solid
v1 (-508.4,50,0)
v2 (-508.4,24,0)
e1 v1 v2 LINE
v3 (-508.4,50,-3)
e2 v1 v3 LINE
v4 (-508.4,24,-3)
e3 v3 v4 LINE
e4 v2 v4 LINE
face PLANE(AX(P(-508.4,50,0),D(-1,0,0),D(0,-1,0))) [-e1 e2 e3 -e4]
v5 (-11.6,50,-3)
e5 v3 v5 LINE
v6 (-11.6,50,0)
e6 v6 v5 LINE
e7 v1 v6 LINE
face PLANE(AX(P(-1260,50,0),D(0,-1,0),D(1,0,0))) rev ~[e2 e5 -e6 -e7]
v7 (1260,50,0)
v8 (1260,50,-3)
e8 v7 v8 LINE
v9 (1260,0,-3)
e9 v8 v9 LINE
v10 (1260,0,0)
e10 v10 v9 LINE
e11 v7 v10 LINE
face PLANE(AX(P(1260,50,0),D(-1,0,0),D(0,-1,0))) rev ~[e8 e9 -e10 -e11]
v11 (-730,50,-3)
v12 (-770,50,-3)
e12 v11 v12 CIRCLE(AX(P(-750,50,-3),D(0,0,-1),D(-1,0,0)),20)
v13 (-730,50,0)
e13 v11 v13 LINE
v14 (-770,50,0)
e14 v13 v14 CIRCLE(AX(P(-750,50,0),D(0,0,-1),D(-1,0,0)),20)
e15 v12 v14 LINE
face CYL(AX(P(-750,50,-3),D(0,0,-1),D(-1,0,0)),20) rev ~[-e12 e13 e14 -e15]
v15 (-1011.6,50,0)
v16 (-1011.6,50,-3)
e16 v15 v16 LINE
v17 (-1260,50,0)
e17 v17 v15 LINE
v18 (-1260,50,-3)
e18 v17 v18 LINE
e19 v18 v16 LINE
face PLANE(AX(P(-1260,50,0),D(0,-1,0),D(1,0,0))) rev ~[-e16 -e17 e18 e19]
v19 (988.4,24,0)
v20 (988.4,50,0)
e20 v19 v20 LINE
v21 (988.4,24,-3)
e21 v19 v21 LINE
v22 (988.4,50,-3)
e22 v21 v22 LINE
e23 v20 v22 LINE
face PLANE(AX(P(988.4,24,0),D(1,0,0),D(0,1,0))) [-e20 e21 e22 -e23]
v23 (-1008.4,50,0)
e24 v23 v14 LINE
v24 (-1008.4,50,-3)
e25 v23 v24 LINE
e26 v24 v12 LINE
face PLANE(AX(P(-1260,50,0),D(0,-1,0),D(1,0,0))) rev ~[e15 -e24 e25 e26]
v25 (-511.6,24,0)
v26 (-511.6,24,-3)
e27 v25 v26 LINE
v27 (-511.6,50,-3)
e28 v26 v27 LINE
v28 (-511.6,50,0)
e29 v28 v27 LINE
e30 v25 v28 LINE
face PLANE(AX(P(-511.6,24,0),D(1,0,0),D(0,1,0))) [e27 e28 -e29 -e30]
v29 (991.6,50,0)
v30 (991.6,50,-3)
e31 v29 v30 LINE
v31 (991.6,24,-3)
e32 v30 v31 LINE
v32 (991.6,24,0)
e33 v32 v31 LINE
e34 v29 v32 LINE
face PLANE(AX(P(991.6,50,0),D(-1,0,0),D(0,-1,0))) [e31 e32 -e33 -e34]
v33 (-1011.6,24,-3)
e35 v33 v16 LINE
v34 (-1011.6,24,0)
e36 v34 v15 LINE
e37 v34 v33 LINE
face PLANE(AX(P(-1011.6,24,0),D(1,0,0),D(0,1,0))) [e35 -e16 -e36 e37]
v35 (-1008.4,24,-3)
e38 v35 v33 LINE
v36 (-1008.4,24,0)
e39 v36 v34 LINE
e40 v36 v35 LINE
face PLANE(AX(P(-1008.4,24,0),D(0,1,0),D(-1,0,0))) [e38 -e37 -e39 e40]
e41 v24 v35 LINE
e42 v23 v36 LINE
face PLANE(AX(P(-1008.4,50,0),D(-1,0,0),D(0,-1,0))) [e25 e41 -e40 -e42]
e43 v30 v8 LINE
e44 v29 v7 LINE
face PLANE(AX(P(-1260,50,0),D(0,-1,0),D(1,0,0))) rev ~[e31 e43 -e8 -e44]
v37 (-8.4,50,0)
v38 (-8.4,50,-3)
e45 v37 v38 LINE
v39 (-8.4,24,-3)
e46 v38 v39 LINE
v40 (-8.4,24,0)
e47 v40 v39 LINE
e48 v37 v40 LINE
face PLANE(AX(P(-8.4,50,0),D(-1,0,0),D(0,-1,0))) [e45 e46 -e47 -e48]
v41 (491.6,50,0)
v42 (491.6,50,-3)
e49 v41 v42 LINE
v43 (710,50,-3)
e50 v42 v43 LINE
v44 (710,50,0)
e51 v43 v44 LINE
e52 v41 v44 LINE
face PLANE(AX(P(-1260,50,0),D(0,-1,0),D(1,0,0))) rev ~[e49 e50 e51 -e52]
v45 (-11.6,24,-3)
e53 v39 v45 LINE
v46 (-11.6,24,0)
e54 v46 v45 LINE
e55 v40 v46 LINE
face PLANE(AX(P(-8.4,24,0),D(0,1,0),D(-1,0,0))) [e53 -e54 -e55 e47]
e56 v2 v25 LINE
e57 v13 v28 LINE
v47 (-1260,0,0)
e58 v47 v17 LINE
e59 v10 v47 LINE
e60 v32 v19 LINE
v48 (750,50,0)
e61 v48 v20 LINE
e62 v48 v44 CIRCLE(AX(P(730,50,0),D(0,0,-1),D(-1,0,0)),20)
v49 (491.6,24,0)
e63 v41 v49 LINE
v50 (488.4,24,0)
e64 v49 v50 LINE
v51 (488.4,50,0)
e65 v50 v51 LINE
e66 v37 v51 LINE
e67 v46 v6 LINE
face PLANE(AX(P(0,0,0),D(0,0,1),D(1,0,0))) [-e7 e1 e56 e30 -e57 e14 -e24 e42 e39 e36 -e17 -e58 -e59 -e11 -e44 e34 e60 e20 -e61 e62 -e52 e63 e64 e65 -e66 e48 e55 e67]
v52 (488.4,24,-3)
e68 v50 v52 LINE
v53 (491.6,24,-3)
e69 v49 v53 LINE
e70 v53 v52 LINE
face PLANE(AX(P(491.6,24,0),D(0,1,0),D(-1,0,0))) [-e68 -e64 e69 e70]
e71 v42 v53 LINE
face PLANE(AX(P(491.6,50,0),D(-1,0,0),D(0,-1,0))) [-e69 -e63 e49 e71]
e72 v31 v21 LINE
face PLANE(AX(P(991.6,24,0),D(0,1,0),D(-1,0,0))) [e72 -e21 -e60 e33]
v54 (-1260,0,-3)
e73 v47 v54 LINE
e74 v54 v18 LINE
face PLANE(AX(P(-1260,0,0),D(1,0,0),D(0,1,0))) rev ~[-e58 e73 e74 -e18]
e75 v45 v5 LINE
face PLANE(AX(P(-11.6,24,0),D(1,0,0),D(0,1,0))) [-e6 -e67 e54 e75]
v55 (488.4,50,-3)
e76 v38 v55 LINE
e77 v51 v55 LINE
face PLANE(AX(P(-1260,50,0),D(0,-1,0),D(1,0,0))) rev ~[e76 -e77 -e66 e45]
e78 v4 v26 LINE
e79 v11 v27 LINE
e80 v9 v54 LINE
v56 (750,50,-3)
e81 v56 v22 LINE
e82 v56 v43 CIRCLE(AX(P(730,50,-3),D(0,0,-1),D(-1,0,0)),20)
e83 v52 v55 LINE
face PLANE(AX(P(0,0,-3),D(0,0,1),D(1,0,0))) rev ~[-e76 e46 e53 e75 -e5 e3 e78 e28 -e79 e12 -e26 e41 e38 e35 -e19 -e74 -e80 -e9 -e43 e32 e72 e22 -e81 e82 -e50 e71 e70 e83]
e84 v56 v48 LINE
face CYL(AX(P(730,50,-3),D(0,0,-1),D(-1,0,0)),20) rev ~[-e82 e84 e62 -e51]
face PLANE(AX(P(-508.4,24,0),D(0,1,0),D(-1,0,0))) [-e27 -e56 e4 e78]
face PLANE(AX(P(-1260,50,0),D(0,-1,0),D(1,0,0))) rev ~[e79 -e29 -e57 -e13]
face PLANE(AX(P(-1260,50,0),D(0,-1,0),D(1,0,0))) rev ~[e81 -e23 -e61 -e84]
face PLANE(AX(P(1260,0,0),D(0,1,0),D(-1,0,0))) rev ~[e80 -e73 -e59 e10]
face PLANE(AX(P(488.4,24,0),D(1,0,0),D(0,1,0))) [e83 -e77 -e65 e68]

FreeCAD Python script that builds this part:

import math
import FreeCAD as App
import Part
import Sketcher
from FreeCAD import Vector
Q = App.Units.Quantity

doc = App.newDocument("Part")
body = doc.addObject("PartDesign::Body", "Body")

# Sketch on XY plane
sketch1 = body.newObject("Sketcher::SketchObject", "Sketch")
sketch1.AttachmentSupport = (doc.getObject("XY_Plane"), [""])
sketch1.MapMode = "FlatFace"
sketch1.addGeometry(Part.LineSegment(Vector(1260, 50, 0), Vector(-1260, 50, 0)), False)
sketch1.addGeometry(Part.LineSegment(Vector(-1260, 50, 0), Vector(-1260, 0, 0)), False)
sketch1.addGeometry(Part.LineSegment(Vector(-1260, 0, 0), Vector(1260, 0, 0)), False)
sketch1.addGeometry(Part.LineSegment(Vector(1260, 0, 0), Vector(1260, 50, 0)), False)
sketch1.addConstraint(Sketcher.Constraint("Coincident", 0, 2, 1, 1))
sketch1.addConstraint(Sketcher.Constraint("Coincident", 1, 2, 2, 1))
sketch1.addConstraint(Sketcher.Constraint("Coincident", 2, 2, 3, 1))
sketch1.addConstraint(Sketcher.Constraint("Coincident", 3, 2, 0, 1))
sketch1.addConstraint(Sketcher.Constraint("Horizontal", 0))
sketch1.addConstraint(Sketcher.Constraint("Vertical", 1))
sketch1.addConstraint(Sketcher.Constraint("Horizontal", 2))
sketch1.addConstraint(Sketcher.Constraint("Vertical", 3))
sketch1.addConstraint(Sketcher.Constraint("Symmetric", 1, 2, 2, 2, -1, 1))
sketch1.addConstraint(Sketcher.Constraint("DistanceX", 0, 2, 0, 1, Q("2520 mm")))
sketch1.addConstraint(Sketcher.Constraint("DistanceY", 1, 2, 1, 1, Q("50 mm")))
pad1 = body.newObject("PartDesign::Pad", "Pad")
pad1.Profile = sketch1
pad1.Length = 3
pad1.Reversed = True

# Sketch on XY plane
sketch2 = body.newObject("Sketcher::SketchObject", "Sketch001")
sketch2.AttachmentSupport = (doc.getObject("XY_Plane"), [""])
sketch2.MapMode = "FlatFace"
sketch2.addGeometry(Part.LineSegment(Vector(-1008.4, 24, 0), Vector(-1008.4, 50, 0)), False)
sketch2.addGeometry(Part.LineSegment(Vector(-1008.4, 50, 0), Vector(-1011.6, 50, 0)), False)
sketch2.addGeometry(Part.LineSegment(Vector(-1011.6, 50, 0), Vector(-1011.6, 24, 0)), False)
sketch2.addGeometry(Part.LineSegment(Vector(-1011.6, 24, 0), Vector(-1008.4, 24, 0)), False)
sketch2.addConstraint(Sketcher.Constraint("Coincident", 0, 2, 1, 1))
sketch2.addConstraint(Sketcher.Constraint("Coincident", 1, 2, 2, 1))
sketch2.addConstraint(Sketcher.Constraint("Coincident", 2, 2, 3, 1))
sketch2.addConstraint(Sketcher.Constraint("Coincident", 3, 2, 0, 1))
sketch2.addConstraint(Sketcher.Constraint("Vertical", 0))
sketch2.addConstraint(Sketcher.Constraint("Horizontal", 1))
sketch2.addConstraint(Sketcher.Constraint("Vertical", 2))
sketch2.addConstraint(Sketcher.Constraint("Horizontal", 3))
sketch2.addConstraint(Sketcher.Constraint("DistanceY", 0, 1, 0, 2, Q("26 mm")))
sketch2.addConstraint(Sketcher.Constraint("DistanceX", 1, 2, 1, 1, Q("3.2 mm")))
sketch2.addConstraint(Sketcher.Constraint("DistanceY", -1, 1, 0, 2, Q("50 mm")))
sketch2.addConstraint(Sketcher.Constraint("DistanceX", 0, 2, -1, 1, Q("1008.4 mm")))
pocket1 = body.newObject("PartDesign::Pocket", "Pocket")
pocket1.Profile = sketch2
pocket1.Type = "ThroughAll"
doc.recompute()

linearpattern = body.newObject("PartDesign::LinearPattern", "LinearPattern")
linearpattern.Originals = [pocket1]
linearpattern.Direction = (doc.getObject("X_Axis"), [""])
linearpattern.Mode = "offset"
linearpattern.Offset = 500
linearpattern.Occurrences = 5
body.Tip = linearpattern

# Sketch on XY plane
sketch3 = body.newObject("Sketcher::SketchObject", "Sketch002")
sketch3.AttachmentSupport = (doc.getObject("XY_Plane"), [""])
sketch3.MapMode = "FlatFace"
sketch3.AttachmentOffset = App.Placement(Vector(0, 0, -3), App.Rotation())
sketch3.addGeometry(Part.LineSegment(Vector(710, 50, 0), Vector(750, 50, 0)), False)
sketch3.addGeometry(Part.ArcOfCircle(Part.Circle(Vector(730, 50, 0), Vector(0, 0, 1), 20), math.radians(180), math.radians(360)), False)
sketch3.addGeometry(Part.ArcOfCircle(Part.Circle(Vector(-750, 50, 0), Vector(0, 0, 1), 20), math.radians(180), math.radians(360)), False)
sketch3.addGeometry(Part.LineSegment(Vector(-770, 50, 0), Vector(-730, 50, 0)), False)
sketch3.addConstraint(Sketcher.Constraint("Coincident", 0, 1, 1, 1))
sketch3.addConstraint(Sketcher.Constraint("Coincident", 1, 2, 0, 2))
sketch3.addConstraint(Sketcher.Constraint("Coincident", 2, 1, 3, 1))
sketch3.addConstraint(Sketcher.Constraint("Coincident", 3, 2, 2, 2))
sketch3.addConstraint(Sketcher.Constraint("Horizontal", 0))
sketch3.addConstraint(Sketcher.Constraint("Horizontal", 3))
sketch3.addConstraint(Sketcher.Constraint("Equal", 1, 2))
sketch3.addConstraint(Sketcher.Constraint("Horizontal", 1, 3, 2, 3))
sketch3.addConstraint(Sketcher.Constraint("Horizontal", 2, 3, 0, 1))
sketch3.addConstraint(Sketcher.Constraint("Horizontal", 1, 2, 2, 1))
sketch3.addConstraint(Sketcher.Constraint("Radius", 1, Q("20 mm")))
sketch3.addConstraint(Sketcher.Constraint("DistanceX", 2, 3, 1, 3, Q("1480 mm")))
sketch3.addConstraint(Sketcher.Constraint("DistanceX", -1, 1, 1, 3, Q("730 mm")))
sketch3.addConstraint(Sketcher.Constraint("DistanceY", -1, 1, 1, 3, Q("50 mm")))
pocket2 = body.newObject("PartDesign::Pocket", "Pocket001")
pocket2.Profile = sketch3
pocket2.Type = "ThroughAll"
pocket2.Reversed = True

doc.recompute()
